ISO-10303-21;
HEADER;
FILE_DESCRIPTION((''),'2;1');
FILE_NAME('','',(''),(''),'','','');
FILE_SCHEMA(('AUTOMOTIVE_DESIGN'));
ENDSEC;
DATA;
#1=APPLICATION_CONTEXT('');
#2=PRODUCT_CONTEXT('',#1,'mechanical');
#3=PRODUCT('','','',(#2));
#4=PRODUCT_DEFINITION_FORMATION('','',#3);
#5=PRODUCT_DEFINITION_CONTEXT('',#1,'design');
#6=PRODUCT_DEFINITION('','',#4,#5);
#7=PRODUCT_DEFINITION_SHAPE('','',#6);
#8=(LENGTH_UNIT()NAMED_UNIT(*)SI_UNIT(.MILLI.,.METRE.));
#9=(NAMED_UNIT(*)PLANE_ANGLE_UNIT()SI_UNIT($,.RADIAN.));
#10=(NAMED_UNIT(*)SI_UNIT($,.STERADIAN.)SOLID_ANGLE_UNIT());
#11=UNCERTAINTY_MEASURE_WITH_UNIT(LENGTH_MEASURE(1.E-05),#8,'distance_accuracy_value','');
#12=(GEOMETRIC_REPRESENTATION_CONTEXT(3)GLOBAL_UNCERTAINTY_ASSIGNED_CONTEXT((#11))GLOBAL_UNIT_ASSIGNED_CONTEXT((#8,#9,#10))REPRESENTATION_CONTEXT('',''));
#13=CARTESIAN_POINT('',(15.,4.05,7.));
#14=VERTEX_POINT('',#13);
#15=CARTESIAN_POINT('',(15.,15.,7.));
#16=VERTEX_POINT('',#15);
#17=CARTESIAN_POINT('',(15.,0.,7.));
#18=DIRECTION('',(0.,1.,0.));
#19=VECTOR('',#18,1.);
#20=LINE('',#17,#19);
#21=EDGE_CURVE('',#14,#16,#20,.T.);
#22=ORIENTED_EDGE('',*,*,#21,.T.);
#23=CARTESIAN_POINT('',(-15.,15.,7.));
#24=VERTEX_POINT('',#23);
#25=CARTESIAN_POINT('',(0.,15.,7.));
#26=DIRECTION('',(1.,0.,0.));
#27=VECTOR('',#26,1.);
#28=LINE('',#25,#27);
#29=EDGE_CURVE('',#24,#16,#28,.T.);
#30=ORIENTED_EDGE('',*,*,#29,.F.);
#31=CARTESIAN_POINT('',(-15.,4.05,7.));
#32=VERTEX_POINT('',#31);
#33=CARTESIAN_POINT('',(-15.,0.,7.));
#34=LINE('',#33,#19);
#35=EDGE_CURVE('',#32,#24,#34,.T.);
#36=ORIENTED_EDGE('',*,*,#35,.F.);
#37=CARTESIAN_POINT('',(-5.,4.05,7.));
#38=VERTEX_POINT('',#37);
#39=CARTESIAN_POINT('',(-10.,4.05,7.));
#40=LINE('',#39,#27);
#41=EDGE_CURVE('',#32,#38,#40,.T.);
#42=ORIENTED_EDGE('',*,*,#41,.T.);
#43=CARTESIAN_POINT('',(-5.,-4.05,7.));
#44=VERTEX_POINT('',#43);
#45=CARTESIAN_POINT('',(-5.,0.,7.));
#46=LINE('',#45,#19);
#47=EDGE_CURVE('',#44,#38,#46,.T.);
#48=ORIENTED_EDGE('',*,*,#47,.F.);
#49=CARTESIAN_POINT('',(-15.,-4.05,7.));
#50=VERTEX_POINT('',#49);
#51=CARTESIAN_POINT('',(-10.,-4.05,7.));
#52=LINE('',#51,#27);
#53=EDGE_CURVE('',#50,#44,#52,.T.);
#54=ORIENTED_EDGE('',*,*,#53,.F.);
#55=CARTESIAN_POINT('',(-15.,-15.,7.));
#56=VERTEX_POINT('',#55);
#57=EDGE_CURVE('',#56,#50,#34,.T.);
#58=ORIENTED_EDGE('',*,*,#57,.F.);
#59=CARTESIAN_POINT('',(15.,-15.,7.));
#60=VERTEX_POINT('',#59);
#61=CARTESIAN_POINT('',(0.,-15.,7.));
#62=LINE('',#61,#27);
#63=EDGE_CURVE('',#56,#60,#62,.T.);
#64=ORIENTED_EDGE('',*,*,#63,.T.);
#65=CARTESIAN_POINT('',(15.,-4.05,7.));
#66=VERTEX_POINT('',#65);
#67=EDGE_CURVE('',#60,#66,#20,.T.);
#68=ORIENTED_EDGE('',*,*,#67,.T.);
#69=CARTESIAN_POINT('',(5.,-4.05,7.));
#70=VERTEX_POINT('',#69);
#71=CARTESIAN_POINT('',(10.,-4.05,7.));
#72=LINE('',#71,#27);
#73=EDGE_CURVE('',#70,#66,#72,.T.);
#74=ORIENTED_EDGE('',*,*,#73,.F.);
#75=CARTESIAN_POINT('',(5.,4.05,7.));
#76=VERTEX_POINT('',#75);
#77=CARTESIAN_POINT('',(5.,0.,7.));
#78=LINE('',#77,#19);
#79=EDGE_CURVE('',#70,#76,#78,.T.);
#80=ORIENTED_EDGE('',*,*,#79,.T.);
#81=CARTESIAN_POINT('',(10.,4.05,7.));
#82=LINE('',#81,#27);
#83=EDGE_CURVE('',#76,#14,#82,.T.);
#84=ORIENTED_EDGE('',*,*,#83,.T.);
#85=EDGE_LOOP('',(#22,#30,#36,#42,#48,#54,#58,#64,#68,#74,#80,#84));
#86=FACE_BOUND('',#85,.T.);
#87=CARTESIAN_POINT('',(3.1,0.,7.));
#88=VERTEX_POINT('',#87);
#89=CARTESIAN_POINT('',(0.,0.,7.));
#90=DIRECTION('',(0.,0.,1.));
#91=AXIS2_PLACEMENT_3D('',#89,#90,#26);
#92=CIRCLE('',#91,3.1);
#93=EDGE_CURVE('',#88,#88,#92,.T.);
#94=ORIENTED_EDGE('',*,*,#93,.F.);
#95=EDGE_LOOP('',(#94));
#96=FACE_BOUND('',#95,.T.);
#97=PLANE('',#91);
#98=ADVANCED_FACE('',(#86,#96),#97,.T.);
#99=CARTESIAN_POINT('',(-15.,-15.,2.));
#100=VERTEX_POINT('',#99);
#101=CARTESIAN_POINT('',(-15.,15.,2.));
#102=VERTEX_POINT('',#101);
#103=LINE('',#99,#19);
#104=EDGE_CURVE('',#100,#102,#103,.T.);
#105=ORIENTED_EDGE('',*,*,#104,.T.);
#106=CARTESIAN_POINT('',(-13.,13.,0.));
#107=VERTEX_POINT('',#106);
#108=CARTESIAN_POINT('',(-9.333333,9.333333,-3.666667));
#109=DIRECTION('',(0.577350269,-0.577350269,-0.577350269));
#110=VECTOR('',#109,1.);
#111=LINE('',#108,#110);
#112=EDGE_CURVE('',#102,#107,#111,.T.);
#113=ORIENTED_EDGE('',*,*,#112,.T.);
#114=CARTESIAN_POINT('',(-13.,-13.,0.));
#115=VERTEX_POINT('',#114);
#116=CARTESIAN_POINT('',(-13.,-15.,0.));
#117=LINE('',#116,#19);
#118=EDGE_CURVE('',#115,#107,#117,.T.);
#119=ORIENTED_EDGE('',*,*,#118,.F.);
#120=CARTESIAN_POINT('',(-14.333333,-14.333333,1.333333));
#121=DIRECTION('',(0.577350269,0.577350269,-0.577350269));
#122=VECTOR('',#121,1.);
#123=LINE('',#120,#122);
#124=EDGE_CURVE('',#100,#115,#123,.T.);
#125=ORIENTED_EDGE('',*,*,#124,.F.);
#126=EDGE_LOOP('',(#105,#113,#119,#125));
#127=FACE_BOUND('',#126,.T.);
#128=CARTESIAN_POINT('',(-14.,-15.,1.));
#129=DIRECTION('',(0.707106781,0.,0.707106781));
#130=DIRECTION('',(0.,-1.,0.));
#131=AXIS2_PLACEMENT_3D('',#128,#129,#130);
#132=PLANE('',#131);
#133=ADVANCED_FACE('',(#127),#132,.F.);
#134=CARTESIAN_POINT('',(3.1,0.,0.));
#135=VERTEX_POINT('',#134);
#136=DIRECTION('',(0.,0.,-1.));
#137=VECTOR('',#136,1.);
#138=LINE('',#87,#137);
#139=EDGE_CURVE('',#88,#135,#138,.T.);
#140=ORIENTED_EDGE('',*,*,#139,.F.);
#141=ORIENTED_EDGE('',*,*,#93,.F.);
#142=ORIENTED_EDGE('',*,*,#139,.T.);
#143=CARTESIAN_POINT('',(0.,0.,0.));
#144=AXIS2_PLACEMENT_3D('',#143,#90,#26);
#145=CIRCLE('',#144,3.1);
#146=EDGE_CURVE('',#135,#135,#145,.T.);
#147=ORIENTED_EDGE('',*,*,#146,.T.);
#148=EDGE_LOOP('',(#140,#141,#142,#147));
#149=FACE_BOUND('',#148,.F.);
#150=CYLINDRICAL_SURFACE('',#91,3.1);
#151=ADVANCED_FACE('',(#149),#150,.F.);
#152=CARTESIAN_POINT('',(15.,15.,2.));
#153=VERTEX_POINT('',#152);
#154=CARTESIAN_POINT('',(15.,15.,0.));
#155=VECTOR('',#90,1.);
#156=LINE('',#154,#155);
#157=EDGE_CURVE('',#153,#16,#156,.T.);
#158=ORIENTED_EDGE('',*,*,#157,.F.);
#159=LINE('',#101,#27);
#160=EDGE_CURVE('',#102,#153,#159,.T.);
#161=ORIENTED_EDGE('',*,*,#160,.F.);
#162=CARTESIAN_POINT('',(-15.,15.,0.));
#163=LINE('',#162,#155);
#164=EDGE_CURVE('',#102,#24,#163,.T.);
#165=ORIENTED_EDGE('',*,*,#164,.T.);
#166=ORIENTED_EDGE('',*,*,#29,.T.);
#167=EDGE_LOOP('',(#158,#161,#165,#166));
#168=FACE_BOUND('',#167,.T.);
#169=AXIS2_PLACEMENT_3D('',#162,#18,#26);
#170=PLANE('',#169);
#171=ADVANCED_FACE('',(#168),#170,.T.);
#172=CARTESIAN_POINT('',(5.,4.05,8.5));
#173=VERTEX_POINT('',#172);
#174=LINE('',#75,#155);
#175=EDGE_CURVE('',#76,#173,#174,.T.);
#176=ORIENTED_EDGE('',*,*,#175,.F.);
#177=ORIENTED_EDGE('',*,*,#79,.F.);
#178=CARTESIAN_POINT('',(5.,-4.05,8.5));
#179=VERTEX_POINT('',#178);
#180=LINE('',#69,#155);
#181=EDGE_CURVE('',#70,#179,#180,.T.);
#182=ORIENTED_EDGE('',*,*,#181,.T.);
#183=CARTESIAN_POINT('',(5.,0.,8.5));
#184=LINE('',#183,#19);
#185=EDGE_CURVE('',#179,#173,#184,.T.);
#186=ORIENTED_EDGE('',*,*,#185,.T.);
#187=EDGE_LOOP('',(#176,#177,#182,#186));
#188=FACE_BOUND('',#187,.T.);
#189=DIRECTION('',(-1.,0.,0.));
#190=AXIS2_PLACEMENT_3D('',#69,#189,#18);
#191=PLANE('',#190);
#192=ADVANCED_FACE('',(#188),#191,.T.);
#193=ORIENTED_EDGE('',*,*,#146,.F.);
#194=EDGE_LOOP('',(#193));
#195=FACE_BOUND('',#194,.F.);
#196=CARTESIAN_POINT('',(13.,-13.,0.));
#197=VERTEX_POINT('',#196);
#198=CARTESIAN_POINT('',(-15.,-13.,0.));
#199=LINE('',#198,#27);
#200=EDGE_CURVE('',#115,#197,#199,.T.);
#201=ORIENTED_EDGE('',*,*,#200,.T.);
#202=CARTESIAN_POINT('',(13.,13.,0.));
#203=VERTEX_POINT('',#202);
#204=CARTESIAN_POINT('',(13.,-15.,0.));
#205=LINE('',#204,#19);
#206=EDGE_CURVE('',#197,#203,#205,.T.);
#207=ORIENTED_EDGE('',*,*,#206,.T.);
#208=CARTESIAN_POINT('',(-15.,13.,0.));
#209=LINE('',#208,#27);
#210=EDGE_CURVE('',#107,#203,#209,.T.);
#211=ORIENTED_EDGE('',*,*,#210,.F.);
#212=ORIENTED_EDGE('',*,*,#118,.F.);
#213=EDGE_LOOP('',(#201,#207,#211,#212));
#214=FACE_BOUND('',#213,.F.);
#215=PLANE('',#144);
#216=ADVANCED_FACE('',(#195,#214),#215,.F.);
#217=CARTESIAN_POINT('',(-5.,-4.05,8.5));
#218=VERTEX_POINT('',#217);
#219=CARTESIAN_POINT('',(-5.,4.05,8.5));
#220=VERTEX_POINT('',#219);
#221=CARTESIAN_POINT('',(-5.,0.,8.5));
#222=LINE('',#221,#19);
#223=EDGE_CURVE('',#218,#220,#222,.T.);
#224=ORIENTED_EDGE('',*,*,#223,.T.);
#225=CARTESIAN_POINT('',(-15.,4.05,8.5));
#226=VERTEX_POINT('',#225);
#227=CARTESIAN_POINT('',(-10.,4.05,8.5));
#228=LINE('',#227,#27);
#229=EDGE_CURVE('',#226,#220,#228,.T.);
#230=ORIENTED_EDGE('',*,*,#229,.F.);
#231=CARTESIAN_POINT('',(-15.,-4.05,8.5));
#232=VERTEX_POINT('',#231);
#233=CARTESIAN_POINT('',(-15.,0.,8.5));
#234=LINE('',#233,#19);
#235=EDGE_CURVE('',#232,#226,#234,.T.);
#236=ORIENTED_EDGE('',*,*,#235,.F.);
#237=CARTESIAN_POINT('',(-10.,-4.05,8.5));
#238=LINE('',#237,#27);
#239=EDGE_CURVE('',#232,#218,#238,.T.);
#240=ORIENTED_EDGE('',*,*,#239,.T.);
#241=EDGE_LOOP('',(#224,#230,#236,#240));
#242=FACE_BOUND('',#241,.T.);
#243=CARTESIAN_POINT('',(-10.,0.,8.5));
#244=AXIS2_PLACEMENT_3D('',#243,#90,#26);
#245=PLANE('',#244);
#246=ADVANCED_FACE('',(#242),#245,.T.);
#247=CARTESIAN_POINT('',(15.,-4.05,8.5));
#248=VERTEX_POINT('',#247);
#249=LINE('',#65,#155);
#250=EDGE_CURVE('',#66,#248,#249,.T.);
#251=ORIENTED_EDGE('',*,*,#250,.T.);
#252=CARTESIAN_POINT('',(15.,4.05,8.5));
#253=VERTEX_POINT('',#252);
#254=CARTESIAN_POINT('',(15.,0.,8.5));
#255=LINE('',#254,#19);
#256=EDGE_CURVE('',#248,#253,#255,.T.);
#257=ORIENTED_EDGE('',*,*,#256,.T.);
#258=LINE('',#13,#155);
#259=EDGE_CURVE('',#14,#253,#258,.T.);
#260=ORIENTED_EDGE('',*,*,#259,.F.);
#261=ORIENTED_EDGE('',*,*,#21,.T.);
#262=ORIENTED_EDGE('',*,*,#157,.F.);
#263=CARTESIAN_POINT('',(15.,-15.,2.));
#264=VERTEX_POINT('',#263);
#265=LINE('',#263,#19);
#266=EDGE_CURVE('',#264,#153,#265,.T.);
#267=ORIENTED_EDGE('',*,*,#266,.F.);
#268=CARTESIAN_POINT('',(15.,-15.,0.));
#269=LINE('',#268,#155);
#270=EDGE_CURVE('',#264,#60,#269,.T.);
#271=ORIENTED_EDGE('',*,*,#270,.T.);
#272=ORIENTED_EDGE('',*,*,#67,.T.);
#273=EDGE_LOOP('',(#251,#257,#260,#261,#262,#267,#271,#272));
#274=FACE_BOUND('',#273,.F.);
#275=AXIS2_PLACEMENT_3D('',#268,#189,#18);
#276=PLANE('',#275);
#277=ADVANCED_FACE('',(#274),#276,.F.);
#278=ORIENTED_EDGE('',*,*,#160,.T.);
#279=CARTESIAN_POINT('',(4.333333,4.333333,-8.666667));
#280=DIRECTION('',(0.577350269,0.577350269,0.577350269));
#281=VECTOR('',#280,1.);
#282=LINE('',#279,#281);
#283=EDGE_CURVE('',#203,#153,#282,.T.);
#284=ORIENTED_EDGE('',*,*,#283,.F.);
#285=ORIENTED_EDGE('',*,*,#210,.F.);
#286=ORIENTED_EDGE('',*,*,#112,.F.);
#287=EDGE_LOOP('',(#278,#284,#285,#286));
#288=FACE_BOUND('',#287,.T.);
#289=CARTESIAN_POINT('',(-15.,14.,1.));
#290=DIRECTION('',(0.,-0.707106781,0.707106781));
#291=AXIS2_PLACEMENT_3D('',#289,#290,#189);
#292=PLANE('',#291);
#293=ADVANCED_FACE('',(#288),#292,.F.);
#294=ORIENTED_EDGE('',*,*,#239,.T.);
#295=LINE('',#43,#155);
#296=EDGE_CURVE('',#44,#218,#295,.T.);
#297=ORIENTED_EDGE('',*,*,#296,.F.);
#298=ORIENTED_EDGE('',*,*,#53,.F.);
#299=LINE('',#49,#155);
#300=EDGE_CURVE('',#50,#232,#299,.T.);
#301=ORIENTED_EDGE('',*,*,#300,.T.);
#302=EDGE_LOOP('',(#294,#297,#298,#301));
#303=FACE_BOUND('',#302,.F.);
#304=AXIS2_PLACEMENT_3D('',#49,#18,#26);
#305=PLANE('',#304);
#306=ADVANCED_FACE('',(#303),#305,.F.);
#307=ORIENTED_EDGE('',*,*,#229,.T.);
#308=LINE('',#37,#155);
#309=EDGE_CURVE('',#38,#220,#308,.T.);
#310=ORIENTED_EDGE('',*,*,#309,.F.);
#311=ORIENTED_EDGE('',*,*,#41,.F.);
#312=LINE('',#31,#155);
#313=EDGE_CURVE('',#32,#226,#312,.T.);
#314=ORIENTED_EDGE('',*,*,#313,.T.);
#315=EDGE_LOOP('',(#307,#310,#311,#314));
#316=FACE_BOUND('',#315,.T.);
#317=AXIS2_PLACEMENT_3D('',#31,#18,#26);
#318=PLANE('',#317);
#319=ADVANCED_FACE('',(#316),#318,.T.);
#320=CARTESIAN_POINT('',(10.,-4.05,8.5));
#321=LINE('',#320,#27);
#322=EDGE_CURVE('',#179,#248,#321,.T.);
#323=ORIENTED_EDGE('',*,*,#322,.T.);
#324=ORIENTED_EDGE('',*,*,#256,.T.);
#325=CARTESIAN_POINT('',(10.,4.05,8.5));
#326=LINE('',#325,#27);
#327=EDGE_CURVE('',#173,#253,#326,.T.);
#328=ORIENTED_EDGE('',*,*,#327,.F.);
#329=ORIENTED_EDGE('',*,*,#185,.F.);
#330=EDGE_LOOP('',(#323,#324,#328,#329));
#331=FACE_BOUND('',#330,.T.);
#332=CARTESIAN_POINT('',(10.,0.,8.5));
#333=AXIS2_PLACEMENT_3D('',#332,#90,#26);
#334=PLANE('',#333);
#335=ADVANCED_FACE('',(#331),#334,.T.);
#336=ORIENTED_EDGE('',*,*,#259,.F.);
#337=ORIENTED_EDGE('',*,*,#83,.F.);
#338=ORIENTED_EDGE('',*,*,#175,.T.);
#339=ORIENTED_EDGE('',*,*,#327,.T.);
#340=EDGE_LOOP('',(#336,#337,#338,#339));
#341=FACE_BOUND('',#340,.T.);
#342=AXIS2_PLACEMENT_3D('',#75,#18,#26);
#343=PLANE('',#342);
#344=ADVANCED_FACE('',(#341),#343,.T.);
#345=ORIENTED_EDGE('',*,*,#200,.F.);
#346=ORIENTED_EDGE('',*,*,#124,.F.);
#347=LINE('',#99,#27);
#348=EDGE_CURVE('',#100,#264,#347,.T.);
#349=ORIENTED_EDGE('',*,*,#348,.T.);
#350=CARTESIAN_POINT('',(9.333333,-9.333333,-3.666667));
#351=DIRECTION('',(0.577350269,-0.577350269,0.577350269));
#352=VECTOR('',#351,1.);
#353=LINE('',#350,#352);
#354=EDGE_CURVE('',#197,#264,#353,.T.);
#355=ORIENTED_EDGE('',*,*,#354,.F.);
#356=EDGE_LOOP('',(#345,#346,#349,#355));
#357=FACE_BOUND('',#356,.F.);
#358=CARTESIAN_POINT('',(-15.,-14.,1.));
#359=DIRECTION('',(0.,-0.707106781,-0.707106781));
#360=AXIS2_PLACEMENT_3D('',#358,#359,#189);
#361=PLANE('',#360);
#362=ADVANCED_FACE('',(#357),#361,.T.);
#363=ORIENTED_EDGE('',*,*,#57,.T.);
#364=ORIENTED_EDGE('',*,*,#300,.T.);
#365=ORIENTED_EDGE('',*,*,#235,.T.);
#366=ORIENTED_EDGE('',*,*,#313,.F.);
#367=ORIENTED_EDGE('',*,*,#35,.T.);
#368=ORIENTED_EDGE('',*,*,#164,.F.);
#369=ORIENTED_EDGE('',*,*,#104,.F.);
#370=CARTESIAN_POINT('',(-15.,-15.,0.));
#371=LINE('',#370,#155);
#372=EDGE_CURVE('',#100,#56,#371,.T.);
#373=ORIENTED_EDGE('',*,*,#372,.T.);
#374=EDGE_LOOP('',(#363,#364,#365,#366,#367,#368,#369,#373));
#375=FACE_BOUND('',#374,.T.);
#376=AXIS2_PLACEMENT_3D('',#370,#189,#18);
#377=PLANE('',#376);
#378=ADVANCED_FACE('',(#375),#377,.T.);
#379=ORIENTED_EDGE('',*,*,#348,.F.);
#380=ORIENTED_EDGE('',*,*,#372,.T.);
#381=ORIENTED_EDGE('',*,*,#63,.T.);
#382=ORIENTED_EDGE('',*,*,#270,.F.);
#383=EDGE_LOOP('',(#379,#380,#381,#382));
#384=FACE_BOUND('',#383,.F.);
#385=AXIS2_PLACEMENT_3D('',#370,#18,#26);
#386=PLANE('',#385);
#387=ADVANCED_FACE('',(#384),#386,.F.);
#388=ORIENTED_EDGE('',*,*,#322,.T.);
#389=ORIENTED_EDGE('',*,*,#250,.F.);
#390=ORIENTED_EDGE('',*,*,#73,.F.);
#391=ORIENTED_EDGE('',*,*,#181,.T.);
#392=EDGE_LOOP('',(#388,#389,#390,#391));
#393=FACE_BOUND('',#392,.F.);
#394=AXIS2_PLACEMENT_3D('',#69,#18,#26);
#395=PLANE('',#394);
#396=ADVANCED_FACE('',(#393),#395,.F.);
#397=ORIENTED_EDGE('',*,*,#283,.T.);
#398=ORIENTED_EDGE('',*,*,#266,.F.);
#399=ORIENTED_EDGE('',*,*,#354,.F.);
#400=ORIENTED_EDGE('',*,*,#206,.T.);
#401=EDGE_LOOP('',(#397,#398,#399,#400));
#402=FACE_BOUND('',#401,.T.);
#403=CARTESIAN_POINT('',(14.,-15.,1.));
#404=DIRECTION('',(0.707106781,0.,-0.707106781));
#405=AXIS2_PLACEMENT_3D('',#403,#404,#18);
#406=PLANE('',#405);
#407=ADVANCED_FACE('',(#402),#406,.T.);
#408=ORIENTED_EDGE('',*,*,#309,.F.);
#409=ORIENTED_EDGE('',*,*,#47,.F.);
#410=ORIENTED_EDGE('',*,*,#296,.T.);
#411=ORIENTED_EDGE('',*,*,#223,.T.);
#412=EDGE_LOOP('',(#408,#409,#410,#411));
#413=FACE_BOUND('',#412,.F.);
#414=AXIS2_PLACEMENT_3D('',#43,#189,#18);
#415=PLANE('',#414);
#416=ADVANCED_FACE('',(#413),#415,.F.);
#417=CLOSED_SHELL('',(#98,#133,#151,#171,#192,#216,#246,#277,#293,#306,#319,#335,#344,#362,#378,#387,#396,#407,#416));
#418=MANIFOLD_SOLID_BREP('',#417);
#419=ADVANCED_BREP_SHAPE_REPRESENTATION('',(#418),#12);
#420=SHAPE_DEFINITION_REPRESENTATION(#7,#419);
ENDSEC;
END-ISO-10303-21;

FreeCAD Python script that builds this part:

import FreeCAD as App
import Part
import Sketcher
Q = App.Units.Quantity


def edges_at(feature, points):
    """Names of the edges that pass closest to the given points."""
    edges = feature.Shape.Edges
    near = lambda p: min(range(len(edges)), key=lambda i: edges[i].distToShape(Part.Vertex(*p))[0])
    return sorted({f"Edge{near(p) + 1}" for p in points})


def add_polygon(sketch, points):
    """Adds a closed chain of lines whose ends are joined by coincident constraints."""
    first, n = sketch.GeometryCount, len(points)
    for a, b in zip(points, points[1:] + points[:1]):
        sketch.addGeometry(Part.LineSegment(App.Vector(*a, 0), App.Vector(*b, 0)), False)
    for i in range(n):
        sketch.addConstraint(Sketcher.Constraint("Coincident", first + i, 2, first + (i + 1) % n, 1))

doc = App.newDocument("Part")
params = doc.addObject("Spreadsheet::Sheet", "Params")
for row, (alias, value) in enumerate([
    ("sketch1_width", "30 mm"),
    ("pad1_length", "7 mm"),
    ("sketch2_width", "10 mm"),
    ("sketch2_height", "8.1 mm"),
    ("pad2_length", "1.5 mm"),
    ("sketch3_diameter", "6.2 mm"),
    ("chamfer_size", "2 mm"),
], start=1):
    params.set(f"A{row}", alias)
    params.set(f"B{row}", "=" + value)
    params.setAlias(f"B{row}", alias)

body = doc.addObject("PartDesign::Body", "Body")

# Sketch on XY plane
sketch1 = body.newObject("Sketcher::SketchObject", "Sketch")
sketch1.AttachmentSupport = (doc.getObject("XY_Plane"), [""])
sketch1.MapMode = "FlatFace"
add_polygon(sketch1, [(-15, 15), (-15, -15), (15, -15), (15, 15)])  # lines 0-3
sketch1.addConstraint(Sketcher.Constraint("Vertical", 0))
sketch1.addConstraint(Sketcher.Constraint("Horizontal", 1))
sketch1.addConstraint(Sketcher.Constraint("Vertical", 2))
sketch1.addConstraint(Sketcher.Constraint("Horizontal", 3))
sketch1.addConstraint(Sketcher.Constraint("Symmetric", 0, 2, 2, 2, -1, 1))
sketch1.addConstraint(Sketcher.Constraint("Equal", 3, 0))
sketch1.addConstraint(Sketcher.Constraint("DistanceX", 1, 1, 1, 2, Q("30 mm")))
sketch1.setExpression("Constraints[10]", "Params.sketch1_width")
pad1 = body.newObject("PartDesign::Pad", "Pad")
pad1.Profile = sketch1
pad1.setExpression("Length", "Params.pad1_length")

# Sketch on XY plane
sketch2 = body.newObject("Sketcher::SketchObject", "Sketch001")
sketch2.AttachmentSupport = (doc.getObject("XY_Plane"), [""])
sketch2.MapMode = "FlatFace"
sketch2.AttachmentOffset = App.Placement(App.Vector(0, 0, 7), App.Rotation())
add_polygon(sketch2, [(-15, 4), (-15, -4), (-5, -4), (-5, 4)])  # lines 0-3
add_polygon(sketch2, [(5, 4), (5, -4), (15, -4), (15, 4)])  # lines 4-7
sketch2.addConstraint(Sketcher.Constraint("Vertical", 0))
sketch2.addConstraint(Sketcher.Constraint("Horizontal", 1))
sketch2.addConstraint(Sketcher.Constraint("Vertical", 2))
sketch2.addConstraint(Sketcher.Constraint("Horizontal", 3))
sketch2.addConstraint(Sketcher.Constraint("Vertical", 4))
sketch2.addConstraint(Sketcher.Constraint("Horizontal", 5))
sketch2.addConstraint(Sketcher.Constraint("Vertical", 6))
sketch2.addConstraint(Sketcher.Constraint("Horizontal", 7))
sketch2.addConstraint(Sketcher.Constraint("Symmetric", 2, 2, 4, 2, -1, 1))
sketch2.addConstraint(Sketcher.Constraint("Symmetric", 0, 2, 6, 2, -1, 1))
sketch2.addConstraint(Sketcher.Constraint("Horizontal", 1, 2, 4, 2))
sketch2.addConstraint(Sketcher.Constraint("DistanceX", 1, 1, 1, 2, Q("10 mm")))
sketch2.addConstraint(Sketcher.Constraint("DistanceY", 0, 2, 0, 1, Q("8.1 mm")))
sketch2.addConstraint(Sketcher.Constraint("DistanceX", 0, 2, -1, 1, Q("15 mm")))
sketch2.setExpression("Constraints[19]", "Params.sketch2_width")
sketch2.setExpression("Constraints[20]", "Params.sketch2_height")
pad2 = body.newObject("PartDesign::Pad", "Pad001")
pad2.Profile = sketch2
pad2.setExpression("Length", "Params.pad2_length")

# Sketch on XY plane
sketch3 = body.newObject("Sketcher::SketchObject", "Sketch002")
sketch3.AttachmentSupport = (doc.getObject("XY_Plane"), [""])
sketch3.MapMode = "FlatFace"
sketch3.AttachmentOffset = App.Placement(App.Vector(0, 0, 7), App.Rotation())
sketch3.addGeometry(Part.Circle(App.Vector(0, 0, 0), App.Vector(0, 0, 1), 3.1), False)
sketch3.addConstraint(Sketcher.Constraint("Coincident", 0, 3, -1, 1))
sketch3.addConstraint(Sketcher.Constraint("Diameter", 0, Q("6.2 mm")))
sketch3.setExpression("Constraints[1]", "Params.sketch3_diameter")
pocket1 = body.newObject("PartDesign::Pocket", "Pocket")
pocket1.Profile = sketch3
pocket1.Type = "ThroughAll"
doc.recompute()

chamfer = body.newObject("PartDesign::Chamfer", "Chamfer")
chamfer.Base = (pocket1, edges_at(pocket1, [
    (15, 0, 0),
    (0, -15, 0),
    (-15, 0, 0),
    (0, 15, 0),
]))
chamfer.setExpression("Size", "Params.chamfer_size")

doc.recompute()
